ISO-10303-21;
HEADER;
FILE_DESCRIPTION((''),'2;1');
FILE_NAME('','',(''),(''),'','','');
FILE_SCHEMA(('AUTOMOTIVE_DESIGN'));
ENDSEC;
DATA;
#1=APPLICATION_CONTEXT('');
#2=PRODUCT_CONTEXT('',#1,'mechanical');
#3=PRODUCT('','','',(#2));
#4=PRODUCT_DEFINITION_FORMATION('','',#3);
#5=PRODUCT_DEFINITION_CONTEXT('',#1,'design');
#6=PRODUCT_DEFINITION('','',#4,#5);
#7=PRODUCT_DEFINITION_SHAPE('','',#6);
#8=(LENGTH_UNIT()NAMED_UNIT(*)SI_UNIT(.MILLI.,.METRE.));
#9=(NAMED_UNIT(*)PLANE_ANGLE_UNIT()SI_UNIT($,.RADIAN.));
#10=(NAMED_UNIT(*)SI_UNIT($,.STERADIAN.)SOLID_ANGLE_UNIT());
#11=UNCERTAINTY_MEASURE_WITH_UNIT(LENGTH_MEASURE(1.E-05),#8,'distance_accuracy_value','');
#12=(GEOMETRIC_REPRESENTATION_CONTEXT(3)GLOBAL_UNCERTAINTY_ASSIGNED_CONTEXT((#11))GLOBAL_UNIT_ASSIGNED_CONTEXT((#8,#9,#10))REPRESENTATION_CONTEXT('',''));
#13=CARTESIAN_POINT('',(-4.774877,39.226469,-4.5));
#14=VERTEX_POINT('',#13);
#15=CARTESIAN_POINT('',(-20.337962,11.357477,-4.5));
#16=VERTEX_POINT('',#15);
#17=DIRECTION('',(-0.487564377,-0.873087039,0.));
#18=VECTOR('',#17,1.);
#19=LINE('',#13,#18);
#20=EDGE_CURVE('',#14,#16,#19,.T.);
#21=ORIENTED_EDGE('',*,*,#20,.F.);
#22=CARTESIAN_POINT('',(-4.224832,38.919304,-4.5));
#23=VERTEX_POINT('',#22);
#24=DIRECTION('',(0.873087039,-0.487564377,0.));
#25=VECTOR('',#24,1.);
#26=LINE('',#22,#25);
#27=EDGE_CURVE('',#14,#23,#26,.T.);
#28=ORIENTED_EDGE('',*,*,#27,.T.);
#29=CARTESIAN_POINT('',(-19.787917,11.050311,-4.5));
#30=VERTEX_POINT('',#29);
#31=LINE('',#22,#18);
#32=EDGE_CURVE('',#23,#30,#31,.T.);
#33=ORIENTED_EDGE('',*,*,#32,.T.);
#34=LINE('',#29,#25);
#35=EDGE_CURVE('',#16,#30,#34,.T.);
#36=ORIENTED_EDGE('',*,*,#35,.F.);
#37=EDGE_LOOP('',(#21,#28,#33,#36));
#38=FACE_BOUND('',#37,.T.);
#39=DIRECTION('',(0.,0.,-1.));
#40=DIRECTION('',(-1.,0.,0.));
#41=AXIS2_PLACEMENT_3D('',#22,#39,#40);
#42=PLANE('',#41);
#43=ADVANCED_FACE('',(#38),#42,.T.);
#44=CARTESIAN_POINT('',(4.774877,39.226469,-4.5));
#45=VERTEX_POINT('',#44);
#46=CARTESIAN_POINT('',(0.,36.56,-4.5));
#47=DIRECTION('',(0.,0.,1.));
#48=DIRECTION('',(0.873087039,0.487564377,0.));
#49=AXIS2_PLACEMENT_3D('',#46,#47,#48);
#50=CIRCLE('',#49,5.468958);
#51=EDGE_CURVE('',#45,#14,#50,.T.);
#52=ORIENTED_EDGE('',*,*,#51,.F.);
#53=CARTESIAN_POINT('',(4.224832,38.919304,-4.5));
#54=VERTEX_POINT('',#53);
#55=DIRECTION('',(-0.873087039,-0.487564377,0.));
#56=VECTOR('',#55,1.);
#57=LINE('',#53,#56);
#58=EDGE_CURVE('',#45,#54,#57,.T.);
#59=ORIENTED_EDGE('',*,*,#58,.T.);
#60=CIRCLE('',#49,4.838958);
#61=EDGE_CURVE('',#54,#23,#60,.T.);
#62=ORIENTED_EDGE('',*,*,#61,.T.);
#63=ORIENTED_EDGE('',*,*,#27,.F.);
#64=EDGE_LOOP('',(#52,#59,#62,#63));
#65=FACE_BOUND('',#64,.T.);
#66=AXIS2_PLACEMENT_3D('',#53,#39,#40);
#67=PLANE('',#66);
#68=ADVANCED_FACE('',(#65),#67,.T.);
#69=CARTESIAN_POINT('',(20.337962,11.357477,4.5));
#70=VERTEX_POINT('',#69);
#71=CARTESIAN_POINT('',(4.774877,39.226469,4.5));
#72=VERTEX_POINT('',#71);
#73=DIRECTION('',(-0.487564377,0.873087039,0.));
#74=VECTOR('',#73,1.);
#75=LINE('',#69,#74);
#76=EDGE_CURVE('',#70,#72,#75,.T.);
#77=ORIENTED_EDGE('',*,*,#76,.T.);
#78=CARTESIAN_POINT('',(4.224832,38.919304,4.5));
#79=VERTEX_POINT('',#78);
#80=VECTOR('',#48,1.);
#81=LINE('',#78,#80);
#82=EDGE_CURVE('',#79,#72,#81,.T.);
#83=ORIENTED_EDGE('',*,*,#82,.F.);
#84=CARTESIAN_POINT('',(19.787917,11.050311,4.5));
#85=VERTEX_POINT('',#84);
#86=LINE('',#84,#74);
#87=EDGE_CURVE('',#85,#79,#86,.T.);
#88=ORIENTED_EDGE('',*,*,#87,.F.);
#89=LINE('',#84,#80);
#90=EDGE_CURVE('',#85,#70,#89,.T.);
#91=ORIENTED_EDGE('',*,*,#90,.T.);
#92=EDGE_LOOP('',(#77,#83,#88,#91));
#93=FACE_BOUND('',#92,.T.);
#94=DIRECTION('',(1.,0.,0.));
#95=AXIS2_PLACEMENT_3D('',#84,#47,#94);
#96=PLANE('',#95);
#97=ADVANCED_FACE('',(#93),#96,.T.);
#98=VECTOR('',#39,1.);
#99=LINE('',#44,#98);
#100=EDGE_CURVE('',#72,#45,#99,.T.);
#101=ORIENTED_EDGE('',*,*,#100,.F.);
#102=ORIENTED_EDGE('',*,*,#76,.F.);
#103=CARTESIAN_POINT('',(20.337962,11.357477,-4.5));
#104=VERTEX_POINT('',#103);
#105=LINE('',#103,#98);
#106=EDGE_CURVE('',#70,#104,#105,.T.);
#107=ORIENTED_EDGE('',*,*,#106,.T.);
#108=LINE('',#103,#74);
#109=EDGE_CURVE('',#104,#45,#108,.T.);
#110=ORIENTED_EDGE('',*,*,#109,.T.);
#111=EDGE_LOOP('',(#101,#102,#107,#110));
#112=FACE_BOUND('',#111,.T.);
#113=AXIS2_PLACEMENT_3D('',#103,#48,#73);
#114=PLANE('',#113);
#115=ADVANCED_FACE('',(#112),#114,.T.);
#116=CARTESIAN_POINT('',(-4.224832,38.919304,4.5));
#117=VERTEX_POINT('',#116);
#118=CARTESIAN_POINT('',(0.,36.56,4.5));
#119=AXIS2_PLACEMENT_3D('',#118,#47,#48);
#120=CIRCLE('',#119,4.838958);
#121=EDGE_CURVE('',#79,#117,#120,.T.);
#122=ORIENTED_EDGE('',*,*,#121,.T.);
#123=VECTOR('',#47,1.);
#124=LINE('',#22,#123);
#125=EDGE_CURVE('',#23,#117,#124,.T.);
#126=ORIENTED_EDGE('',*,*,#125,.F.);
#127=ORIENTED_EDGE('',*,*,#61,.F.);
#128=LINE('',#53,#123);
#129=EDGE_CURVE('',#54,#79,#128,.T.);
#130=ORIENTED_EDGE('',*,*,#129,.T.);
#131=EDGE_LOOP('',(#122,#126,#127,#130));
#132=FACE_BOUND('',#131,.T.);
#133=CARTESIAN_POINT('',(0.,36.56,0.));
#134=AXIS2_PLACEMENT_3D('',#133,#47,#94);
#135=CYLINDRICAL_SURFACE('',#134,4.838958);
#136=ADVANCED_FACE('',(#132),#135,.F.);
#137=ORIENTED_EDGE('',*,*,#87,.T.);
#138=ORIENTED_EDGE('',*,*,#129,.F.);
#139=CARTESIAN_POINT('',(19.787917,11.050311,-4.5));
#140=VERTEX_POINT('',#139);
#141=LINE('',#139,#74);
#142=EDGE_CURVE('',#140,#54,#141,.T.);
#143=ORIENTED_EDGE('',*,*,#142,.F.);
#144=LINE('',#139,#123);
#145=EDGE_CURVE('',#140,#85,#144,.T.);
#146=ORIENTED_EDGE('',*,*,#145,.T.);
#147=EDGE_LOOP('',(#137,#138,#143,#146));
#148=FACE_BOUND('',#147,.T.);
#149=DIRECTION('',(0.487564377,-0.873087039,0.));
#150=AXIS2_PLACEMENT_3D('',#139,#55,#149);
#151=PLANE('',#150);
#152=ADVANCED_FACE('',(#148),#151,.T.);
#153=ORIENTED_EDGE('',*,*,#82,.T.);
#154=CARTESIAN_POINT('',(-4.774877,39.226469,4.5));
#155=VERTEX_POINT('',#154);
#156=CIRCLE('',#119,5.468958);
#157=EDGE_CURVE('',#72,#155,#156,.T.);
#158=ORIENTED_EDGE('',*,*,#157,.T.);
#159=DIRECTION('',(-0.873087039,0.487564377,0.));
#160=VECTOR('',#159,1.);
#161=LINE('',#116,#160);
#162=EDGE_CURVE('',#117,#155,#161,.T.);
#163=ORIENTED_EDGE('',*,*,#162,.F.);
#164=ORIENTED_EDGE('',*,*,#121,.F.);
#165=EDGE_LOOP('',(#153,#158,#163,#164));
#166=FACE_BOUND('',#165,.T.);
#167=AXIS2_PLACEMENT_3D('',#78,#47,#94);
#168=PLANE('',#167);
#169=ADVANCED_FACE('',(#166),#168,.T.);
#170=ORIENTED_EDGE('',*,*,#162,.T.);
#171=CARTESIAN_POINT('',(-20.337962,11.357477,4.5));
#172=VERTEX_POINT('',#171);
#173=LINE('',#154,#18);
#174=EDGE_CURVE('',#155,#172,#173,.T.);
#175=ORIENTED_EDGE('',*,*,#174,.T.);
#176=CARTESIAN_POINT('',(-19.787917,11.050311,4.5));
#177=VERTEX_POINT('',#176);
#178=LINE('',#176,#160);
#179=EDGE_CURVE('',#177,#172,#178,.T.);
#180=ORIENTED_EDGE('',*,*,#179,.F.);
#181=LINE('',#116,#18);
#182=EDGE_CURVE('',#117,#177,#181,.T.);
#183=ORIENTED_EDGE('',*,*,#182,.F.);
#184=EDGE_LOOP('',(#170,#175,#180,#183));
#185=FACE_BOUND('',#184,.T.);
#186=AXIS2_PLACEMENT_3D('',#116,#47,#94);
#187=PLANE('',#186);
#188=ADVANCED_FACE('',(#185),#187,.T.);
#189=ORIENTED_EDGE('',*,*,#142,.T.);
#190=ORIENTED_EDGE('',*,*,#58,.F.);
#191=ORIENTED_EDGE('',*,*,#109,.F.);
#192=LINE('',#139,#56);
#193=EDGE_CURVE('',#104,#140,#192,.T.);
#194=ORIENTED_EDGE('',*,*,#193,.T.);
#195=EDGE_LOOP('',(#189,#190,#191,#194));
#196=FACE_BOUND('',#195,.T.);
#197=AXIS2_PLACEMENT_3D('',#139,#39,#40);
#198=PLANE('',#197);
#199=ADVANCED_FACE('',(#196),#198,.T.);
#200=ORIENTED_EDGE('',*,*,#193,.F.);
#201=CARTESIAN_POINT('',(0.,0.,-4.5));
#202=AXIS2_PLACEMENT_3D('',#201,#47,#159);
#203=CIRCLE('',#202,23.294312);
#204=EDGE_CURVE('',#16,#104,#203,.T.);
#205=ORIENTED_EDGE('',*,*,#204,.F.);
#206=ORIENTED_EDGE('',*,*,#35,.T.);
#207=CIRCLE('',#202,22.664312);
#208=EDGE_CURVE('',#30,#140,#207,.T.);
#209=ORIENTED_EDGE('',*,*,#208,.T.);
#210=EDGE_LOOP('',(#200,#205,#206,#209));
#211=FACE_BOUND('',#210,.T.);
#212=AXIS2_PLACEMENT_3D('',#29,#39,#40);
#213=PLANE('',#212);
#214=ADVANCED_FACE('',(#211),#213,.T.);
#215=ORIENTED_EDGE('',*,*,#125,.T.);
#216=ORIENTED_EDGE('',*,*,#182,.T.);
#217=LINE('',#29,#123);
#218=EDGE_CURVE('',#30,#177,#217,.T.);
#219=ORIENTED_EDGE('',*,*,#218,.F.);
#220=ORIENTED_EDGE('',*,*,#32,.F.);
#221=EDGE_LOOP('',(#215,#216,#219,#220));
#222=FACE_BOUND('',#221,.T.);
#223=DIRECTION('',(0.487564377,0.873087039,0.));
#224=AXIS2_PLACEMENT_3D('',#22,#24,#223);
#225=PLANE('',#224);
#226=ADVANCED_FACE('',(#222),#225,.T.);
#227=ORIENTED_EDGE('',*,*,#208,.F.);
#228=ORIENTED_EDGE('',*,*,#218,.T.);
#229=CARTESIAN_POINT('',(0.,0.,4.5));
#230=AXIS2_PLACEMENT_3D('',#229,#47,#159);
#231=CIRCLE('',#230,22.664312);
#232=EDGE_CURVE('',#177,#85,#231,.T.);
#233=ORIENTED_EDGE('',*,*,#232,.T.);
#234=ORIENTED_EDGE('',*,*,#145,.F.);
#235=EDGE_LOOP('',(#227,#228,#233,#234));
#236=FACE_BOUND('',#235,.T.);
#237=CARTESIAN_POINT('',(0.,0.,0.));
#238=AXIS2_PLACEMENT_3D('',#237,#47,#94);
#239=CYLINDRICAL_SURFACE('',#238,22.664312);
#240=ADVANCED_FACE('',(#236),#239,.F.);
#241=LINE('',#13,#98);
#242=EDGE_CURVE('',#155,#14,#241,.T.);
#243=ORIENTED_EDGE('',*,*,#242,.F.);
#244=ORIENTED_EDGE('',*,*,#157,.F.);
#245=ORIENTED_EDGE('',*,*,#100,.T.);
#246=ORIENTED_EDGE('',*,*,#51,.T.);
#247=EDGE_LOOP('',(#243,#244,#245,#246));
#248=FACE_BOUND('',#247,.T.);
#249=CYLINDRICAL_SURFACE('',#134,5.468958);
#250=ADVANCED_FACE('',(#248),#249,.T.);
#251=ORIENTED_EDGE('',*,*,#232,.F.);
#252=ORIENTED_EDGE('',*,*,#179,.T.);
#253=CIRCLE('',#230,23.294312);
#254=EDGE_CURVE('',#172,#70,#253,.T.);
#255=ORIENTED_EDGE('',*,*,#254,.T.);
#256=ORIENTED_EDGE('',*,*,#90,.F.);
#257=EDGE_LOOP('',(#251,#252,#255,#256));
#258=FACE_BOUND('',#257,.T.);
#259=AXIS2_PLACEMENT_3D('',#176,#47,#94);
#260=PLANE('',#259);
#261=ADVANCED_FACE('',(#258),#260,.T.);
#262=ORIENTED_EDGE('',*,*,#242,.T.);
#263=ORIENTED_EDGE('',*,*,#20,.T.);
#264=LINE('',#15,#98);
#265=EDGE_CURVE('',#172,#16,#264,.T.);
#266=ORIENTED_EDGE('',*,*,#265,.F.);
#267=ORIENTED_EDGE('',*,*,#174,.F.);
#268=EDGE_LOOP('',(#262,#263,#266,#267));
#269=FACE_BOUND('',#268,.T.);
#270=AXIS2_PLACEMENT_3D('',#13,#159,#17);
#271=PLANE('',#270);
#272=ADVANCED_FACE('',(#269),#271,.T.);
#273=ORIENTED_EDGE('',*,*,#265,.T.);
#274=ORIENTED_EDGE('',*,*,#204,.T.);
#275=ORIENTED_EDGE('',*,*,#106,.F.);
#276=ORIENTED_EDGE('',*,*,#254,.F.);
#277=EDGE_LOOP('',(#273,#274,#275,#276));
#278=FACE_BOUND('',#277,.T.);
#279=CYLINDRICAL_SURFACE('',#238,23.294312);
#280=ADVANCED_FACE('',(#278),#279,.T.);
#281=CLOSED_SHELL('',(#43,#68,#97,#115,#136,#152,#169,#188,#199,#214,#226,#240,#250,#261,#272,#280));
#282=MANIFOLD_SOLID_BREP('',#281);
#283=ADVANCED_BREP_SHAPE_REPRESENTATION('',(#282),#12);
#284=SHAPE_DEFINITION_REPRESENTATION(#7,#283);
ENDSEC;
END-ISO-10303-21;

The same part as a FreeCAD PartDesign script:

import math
import FreeCAD as App
import Part
import Sketcher

V = App.Vector

doc = App.newDocument("Part")
body = doc.addObject("PartDesign::Body", "Body")

sketch1 = body.newObject("Sketcher::SketchObject", "Sketch")
sketch1.Placement = App.Placement(V(0, 0, 0), App.Rotation(V(0, 0, -1), V(-0.873087039, -0.487564377, 0), V(-0.487564377, 0.873087039, 0), "ZXY"))
sketch1.addGeometry([
    Part.LineSegment(V(-4.5, -22.7, 0), V(-4.5, -23.3, 0)),
    Part.LineSegment(V(-4.5, -23.3, 0), V(4.5, -23.3, 0)),
    Part.LineSegment(V(4.5, -23.3, 0), V(4.5, -22.7, 0)),
    Part.LineSegment(V(4.5, -22.7, 0), V(-4.5, -22.7, 0)),
], False)
sketch1.addConstraint([
    Sketcher.Constraint("Coincident", 0, 2, 1, 1),
    Sketcher.Constraint("Coincident", 1, 2, 2, 1),
    Sketcher.Constraint("Coincident", 2, 2, 3, 1),
    Sketcher.Constraint("Coincident", 3, 2, 0, 1),
    Sketcher.Constraint("Vertical", 0),
    Sketcher.Constraint("Horizontal", 1),
    Sketcher.Constraint("Vertical", 2),
    Sketcher.Constraint("Horizontal", 3),
    Sketcher.Constraint("DistanceX", 1, 1, 1, 2, 9.0),
    Sketcher.Constraint("DistanceY", 0, 2, 0, 1, 0.63),
    Sketcher.Constraint("DistanceX", 0, 2, -1, 1, 4.5),
    Sketcher.Constraint("DistanceY", 0, 2, -1, 1, 23.294312),
])

sketch2 = body.newObject("Sketcher::SketchObject", "Sketch001")
sketch2.AttachmentSupport = (doc.getObject("XY_Plane"), [""])
sketch2.MapMode = "FlatFace"
sketch2.addGeometry([
    Part.LineSegment(V(-4, 39, 0), V(-20, 11, 0)),
    Part.ArcOfCircle(Part.Circle(V(0, 0, 0), V(0, 0, 1), 23), math.radians(151), math.radians(389)),
    Part.LineSegment(V(20, 11, 0), V(4, 39, 0)),
    Part.ArcOfCircle(Part.Circle(V(0, 37, 0), V(0, 0, 1), 5), math.radians(29), math.radians(151)),
], False)
sketch2.addConstraint([
    Sketcher.Constraint("Tangent", 0, 2, 1, 1),
    Sketcher.Constraint("Tangent", 1, 2, 2, 1),
    Sketcher.Constraint("Tangent", 2, 2, 3, 1),
    Sketcher.Constraint("Tangent", 3, 2, 0, 1),
    Sketcher.Constraint("Coincident", 1, 3, -1, 1),
    Sketcher.Constraint("PointOnObject", 3, 3, -2),
    Sketcher.Constraint("DistanceY", -1, 1, 3, 3, 36.56),
    Sketcher.Constraint("Radius", 1, 22.918312),
    Sketcher.Constraint("Radius", 3, 5.092958),
])
doc.recompute()

additivepipe = body.newObject("PartDesign::AdditivePipe", "AdditivePipe")
additivepipe.Profile = sketch1
additivepipe.Spine = (sketch2, ["Edge1", "Edge2", "Edge3", "Edge4"])

doc.recompute()
